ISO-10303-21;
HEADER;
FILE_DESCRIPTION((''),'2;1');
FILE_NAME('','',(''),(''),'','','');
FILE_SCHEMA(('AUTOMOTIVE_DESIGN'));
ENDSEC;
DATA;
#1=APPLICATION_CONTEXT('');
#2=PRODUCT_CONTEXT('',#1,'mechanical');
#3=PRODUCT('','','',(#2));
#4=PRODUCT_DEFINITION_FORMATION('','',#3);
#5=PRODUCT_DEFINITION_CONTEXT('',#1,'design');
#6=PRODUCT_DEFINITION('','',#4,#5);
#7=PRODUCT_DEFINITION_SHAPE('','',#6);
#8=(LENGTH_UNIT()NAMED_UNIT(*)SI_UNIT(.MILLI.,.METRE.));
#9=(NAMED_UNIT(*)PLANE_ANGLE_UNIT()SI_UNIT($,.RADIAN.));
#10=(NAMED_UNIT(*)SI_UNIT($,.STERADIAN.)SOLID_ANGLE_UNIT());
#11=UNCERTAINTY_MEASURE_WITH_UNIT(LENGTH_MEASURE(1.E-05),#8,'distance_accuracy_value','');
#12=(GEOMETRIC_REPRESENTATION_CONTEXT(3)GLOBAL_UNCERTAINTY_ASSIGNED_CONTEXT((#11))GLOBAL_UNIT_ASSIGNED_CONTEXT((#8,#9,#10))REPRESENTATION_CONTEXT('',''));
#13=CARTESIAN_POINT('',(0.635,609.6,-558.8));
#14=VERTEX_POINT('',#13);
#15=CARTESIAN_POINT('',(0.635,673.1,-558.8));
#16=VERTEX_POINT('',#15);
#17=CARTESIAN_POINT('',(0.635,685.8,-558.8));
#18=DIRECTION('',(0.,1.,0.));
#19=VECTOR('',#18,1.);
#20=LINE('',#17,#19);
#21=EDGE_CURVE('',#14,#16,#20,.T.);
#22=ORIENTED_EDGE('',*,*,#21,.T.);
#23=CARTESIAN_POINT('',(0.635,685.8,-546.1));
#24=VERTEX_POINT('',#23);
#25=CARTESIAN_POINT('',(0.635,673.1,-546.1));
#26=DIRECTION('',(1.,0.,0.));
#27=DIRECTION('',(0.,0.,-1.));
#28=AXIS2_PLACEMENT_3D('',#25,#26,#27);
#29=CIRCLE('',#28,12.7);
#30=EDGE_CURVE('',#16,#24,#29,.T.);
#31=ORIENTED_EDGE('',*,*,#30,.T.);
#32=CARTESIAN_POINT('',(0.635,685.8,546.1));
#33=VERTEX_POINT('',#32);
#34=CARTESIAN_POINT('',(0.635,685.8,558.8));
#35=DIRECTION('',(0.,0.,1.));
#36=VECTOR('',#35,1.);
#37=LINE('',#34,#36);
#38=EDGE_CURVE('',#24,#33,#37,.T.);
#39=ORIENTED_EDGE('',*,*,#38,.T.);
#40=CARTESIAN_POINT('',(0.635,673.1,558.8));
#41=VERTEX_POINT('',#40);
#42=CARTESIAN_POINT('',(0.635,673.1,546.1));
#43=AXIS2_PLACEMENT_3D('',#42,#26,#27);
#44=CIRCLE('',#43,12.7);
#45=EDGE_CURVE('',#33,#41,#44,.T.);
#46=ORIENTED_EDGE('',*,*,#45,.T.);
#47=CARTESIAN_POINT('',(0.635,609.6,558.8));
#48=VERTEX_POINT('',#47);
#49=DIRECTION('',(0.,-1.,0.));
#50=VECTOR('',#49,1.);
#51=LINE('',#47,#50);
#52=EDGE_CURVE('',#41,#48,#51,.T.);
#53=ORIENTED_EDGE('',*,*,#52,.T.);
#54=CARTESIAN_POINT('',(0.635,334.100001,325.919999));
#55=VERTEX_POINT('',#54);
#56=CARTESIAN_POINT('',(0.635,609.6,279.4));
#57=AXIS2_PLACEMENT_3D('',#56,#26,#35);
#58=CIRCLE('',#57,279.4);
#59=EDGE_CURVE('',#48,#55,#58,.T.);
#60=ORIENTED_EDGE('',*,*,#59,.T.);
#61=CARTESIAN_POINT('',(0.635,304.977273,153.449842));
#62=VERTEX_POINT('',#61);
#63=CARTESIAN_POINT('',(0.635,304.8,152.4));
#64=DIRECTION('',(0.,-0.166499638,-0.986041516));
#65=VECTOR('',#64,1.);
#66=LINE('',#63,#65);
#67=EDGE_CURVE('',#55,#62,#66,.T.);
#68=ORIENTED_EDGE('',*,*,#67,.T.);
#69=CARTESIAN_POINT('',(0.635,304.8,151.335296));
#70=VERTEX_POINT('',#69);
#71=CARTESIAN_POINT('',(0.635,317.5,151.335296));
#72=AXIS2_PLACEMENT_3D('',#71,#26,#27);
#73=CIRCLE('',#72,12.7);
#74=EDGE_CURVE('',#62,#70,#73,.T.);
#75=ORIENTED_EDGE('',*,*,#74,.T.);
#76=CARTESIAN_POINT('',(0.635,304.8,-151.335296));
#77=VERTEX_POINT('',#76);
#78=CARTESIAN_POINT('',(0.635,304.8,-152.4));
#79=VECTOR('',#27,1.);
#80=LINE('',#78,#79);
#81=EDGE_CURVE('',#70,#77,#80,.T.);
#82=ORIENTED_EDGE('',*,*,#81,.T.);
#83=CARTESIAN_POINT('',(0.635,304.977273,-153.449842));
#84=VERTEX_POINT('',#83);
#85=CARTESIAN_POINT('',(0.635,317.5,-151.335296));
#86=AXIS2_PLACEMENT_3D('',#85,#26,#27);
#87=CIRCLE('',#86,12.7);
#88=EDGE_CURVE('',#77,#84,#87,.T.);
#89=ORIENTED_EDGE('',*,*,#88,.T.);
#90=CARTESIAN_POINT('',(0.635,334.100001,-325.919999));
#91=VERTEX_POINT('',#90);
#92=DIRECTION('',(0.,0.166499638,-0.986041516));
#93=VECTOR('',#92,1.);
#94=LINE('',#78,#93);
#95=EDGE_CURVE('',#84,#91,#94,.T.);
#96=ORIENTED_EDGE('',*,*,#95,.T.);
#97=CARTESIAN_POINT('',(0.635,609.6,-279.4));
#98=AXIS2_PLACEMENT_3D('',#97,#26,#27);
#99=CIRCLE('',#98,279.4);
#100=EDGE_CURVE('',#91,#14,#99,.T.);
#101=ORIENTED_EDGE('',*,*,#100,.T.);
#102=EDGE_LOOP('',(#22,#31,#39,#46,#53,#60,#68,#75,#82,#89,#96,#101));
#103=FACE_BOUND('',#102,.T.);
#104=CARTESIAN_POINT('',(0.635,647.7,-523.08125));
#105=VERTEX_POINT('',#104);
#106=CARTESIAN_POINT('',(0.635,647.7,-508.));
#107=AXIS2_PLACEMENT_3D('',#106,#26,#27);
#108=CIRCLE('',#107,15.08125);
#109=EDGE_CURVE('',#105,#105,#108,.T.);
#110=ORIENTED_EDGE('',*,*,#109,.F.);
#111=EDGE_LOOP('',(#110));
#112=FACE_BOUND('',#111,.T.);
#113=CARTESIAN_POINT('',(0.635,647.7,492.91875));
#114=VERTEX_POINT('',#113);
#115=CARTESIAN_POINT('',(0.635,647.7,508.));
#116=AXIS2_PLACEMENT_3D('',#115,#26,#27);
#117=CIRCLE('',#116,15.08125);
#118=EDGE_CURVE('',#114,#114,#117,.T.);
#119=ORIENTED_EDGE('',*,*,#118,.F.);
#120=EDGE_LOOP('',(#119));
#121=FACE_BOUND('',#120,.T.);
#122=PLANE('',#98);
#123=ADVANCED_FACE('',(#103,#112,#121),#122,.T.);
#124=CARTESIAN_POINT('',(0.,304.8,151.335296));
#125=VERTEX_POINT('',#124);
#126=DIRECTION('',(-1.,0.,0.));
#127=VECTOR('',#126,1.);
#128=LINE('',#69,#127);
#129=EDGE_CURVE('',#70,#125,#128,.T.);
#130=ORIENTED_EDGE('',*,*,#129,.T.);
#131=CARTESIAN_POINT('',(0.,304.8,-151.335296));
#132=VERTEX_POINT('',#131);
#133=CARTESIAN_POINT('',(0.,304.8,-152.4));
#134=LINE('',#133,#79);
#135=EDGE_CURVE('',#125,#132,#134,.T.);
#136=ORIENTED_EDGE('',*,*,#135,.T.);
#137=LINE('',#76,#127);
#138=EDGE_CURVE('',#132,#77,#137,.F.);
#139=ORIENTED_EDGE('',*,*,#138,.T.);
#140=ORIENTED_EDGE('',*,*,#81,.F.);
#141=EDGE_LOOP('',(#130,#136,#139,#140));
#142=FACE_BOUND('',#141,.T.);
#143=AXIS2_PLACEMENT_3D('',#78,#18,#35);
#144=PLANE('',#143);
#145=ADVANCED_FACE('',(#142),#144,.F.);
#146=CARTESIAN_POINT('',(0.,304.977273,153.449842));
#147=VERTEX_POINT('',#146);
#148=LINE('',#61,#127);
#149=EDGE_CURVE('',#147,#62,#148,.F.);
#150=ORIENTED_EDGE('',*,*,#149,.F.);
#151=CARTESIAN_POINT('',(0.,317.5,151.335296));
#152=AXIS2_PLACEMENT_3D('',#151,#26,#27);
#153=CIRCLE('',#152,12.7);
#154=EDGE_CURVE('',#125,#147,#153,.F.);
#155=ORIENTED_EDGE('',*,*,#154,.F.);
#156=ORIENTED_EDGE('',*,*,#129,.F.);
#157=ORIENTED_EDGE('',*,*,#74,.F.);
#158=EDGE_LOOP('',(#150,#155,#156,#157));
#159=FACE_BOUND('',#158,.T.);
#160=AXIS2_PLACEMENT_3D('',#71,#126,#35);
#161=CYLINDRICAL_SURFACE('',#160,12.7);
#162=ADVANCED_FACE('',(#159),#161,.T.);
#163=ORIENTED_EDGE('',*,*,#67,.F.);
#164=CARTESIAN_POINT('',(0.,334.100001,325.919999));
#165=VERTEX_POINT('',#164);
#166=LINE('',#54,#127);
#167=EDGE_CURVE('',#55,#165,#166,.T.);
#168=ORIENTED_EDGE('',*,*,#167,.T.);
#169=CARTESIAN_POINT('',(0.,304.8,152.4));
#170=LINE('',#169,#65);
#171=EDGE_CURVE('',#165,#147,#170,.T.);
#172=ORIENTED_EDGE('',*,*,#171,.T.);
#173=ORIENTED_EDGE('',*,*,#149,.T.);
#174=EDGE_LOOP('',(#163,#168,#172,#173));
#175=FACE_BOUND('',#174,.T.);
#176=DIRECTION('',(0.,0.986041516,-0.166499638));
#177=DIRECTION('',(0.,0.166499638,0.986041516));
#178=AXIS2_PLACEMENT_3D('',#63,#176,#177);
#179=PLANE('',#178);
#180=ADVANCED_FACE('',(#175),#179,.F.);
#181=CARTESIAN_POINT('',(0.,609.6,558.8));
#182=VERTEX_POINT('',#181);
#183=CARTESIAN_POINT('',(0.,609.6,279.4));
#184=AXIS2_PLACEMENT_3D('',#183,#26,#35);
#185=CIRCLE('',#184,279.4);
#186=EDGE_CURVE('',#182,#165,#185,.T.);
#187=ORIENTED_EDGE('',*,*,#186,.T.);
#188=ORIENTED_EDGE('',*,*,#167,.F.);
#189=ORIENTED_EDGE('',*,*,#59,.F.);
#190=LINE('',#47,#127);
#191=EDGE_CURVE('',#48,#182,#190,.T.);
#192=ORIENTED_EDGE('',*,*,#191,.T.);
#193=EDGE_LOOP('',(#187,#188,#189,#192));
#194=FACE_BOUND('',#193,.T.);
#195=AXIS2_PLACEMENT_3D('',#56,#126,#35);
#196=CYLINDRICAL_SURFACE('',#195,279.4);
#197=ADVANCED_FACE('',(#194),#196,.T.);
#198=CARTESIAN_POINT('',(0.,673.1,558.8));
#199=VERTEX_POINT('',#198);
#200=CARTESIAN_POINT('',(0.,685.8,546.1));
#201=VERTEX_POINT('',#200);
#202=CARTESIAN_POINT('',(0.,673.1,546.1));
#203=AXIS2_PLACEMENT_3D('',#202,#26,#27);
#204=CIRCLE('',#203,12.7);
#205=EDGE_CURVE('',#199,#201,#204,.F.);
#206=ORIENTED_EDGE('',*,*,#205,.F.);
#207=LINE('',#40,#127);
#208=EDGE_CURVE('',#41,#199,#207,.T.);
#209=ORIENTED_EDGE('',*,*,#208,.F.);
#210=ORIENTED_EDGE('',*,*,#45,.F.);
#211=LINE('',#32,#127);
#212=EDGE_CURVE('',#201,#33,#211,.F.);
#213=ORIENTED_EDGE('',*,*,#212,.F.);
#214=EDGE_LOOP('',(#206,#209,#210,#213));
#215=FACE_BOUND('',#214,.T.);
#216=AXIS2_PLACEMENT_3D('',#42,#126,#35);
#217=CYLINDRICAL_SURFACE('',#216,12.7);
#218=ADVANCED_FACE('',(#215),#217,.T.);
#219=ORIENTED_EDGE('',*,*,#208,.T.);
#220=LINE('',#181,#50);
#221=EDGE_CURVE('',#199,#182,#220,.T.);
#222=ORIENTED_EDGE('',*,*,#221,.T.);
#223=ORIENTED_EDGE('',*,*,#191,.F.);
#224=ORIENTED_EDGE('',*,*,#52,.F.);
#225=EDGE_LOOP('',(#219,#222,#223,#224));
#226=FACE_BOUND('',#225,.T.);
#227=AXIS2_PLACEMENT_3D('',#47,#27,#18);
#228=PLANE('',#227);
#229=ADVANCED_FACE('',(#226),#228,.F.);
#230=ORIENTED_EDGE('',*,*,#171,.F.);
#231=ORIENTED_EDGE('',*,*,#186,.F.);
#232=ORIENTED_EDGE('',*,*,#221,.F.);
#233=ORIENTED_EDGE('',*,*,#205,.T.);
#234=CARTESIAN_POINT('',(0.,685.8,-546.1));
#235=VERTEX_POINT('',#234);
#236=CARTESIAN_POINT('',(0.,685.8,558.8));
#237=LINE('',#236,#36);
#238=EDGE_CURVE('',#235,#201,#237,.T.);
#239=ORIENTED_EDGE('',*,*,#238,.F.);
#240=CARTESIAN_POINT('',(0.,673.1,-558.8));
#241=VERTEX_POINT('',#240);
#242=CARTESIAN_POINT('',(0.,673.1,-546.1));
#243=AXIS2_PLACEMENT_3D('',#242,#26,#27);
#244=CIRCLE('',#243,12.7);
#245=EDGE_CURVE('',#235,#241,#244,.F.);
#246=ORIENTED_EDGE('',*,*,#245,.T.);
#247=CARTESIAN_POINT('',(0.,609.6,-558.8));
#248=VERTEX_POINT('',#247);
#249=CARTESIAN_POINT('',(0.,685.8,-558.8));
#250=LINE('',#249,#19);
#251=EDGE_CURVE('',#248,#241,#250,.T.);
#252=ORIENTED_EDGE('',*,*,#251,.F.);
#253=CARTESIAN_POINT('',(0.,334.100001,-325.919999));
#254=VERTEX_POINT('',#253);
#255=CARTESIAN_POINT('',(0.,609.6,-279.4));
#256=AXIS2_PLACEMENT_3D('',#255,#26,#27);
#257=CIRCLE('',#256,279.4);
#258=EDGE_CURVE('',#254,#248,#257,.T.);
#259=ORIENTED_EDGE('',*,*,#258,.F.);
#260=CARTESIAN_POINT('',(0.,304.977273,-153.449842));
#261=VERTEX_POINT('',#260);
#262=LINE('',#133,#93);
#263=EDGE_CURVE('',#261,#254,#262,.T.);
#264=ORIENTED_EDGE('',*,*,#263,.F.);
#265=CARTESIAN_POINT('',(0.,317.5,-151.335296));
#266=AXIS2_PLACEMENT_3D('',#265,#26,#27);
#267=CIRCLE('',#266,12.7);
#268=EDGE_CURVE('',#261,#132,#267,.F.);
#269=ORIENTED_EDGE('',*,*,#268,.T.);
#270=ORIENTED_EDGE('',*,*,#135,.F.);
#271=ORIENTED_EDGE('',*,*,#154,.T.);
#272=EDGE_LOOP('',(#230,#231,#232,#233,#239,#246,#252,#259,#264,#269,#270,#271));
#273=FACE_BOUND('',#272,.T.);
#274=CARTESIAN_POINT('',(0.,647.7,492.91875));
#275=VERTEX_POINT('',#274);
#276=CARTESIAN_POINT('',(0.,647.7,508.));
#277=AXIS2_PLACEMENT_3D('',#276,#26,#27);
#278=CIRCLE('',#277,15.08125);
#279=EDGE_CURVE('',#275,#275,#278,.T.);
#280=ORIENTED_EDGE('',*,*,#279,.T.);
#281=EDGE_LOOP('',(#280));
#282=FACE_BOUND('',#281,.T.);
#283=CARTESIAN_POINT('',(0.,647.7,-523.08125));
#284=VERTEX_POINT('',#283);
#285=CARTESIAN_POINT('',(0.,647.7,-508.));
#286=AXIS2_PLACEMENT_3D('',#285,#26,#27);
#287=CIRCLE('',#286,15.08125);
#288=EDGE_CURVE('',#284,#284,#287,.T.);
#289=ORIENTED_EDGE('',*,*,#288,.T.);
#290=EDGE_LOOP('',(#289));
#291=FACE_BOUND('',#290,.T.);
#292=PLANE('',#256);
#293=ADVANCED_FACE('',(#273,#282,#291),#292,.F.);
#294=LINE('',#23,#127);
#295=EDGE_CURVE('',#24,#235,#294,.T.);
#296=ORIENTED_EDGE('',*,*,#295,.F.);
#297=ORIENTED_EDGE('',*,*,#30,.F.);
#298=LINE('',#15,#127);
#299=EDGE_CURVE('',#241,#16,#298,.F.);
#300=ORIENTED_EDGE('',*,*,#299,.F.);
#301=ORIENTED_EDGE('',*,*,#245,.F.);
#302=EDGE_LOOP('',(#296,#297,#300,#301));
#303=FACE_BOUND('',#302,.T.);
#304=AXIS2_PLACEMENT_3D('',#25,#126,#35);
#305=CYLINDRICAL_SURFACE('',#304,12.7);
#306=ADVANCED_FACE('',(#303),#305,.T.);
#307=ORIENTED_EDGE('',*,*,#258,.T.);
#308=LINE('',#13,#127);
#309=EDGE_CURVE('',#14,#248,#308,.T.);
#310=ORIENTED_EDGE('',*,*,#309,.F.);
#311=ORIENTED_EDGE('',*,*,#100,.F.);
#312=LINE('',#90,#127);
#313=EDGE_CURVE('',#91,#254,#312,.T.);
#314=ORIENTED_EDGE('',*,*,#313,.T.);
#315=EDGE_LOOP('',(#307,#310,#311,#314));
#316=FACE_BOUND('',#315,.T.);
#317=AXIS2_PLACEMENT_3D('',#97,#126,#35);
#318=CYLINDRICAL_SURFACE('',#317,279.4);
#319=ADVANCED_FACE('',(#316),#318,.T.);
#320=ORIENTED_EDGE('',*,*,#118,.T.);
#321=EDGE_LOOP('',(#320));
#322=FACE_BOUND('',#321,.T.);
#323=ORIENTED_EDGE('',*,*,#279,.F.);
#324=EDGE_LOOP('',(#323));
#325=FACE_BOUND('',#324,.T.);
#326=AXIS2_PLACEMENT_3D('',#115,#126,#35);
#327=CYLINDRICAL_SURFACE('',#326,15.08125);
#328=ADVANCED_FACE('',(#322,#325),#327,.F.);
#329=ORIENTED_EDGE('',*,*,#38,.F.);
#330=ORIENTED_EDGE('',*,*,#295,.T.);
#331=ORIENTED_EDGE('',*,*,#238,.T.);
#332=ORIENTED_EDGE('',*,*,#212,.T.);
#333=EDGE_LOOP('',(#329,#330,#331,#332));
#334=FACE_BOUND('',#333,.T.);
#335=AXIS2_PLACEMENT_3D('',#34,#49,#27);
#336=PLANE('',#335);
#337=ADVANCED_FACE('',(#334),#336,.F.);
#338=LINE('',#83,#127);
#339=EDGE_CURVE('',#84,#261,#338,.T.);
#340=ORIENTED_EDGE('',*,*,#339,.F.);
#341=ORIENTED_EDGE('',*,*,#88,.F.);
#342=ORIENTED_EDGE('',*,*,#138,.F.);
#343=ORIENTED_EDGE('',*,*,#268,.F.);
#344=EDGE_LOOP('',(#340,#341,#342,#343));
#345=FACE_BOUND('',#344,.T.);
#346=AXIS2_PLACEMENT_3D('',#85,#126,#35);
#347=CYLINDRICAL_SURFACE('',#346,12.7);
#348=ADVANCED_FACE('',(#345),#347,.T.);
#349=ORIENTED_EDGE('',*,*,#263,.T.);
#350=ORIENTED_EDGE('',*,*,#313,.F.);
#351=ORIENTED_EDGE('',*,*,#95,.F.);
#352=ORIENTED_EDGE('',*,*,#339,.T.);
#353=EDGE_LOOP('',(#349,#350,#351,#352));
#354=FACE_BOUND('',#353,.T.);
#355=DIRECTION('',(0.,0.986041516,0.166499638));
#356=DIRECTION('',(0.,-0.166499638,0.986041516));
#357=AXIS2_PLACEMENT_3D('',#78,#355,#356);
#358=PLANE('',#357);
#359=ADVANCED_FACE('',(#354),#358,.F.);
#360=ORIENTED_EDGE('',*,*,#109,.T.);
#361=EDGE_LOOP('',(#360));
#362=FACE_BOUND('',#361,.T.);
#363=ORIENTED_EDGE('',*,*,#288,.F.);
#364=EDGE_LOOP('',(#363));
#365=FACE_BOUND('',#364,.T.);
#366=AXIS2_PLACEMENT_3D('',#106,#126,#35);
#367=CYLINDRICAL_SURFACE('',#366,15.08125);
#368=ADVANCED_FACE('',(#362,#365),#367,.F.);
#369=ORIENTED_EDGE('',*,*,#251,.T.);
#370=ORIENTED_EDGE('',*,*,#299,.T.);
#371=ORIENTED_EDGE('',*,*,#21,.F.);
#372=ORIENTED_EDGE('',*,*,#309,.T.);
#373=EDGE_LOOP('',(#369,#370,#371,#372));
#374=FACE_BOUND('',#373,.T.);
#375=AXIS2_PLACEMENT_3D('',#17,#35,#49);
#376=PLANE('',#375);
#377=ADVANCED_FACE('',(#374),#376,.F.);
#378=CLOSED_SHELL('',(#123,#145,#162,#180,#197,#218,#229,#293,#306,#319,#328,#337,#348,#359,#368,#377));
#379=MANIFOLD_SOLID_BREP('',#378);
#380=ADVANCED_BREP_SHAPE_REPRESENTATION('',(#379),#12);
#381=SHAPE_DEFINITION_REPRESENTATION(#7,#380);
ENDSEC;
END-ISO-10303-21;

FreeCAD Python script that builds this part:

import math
import FreeCAD as App
import Part
import Sketcher
Q = App.Units.Quantity


def edges_at(feature, points):
    """Names of the edges that pass closest to the given points."""
    edges = feature.Shape.Edges
    near = lambda p: min(range(len(edges)), key=lambda i: edges[i].distToShape(Part.Vertex(*p))[0])
    return sorted({f"Edge{near(p) + 1}" for p in points})

doc = App.newDocument("Part")
body = doc.addObject("PartDesign::Body", "Body")

# Sketch on YZ plane
sketch1 = body.newObject("Sketcher::SketchObject", "Sketch")
sketch1.AttachmentSupport = (doc.getObject("YZ_Plane"), [""])
sketch1.MapMode = "FlatFace"
sketch1.addGeometry([
    Part.LineSegment(App.Vector(686, 559, 0), App.Vector(610, 559, 0)),  # 0
    Part.ArcOfCircle(Part.Circle(App.Vector(610, 279, 0), App.Vector(0, 0, 1), 279), math.radians(90), math.radians(170)),  # 1
    Part.LineSegment(App.Vector(334, 326, 0), App.Vector(305, 152, 0)),  # 2
    Part.LineSegment(App.Vector(305, 152, 0), App.Vector(305, -152, 0)),  # 3
    Part.LineSegment(App.Vector(305, -152, 0), App.Vector(334, -326, 0)),  # 4
    Part.ArcOfCircle(Part.Circle(App.Vector(610, -279, 0), App.Vector(0, 0, 1), 279), math.radians(-170), math.radians(-90)),  # 5
    Part.LineSegment(App.Vector(610, -559, 0), App.Vector(686, -559, 0)),  # 6
    Part.LineSegment(App.Vector(686, -559, 0), App.Vector(686, 559, 0)),  # 7
    Part.Circle(App.Vector(648, -508, 0), App.Vector(0, 0, 1), 15),  # 8
    Part.Circle(App.Vector(648, 508, 0), App.Vector(0, 0, 1), 15),  # 9
], False)
sketch1.addConstraint([
    Sketcher.Constraint("Tangent", 0, 2, 1, 1),
    Sketcher.Constraint("Tangent", 1, 2, 2, 1),
    Sketcher.Constraint("Coincident", 2, 2, 3, 1),
    Sketcher.Constraint("Coincident", 3, 2, 4, 1),
    Sketcher.Constraint("Tangent", 4, 2, 5, 1),
    Sketcher.Constraint("Tangent", 5, 2, 6, 1),
    Sketcher.Constraint("Coincident", 6, 2, 7, 1),
    Sketcher.Constraint("Coincident", 7, 2, 0, 1),
    Sketcher.Constraint("Horizontal", 0),
    Sketcher.Constraint("Vertical", 3),
    Sketcher.Constraint("Horizontal", 6),
    Sketcher.Constraint("Vertical", 7),
    Sketcher.Constraint("Equal", 1, 5),
    Sketcher.Constraint("Equal", 8, 9),
    Sketcher.Constraint("Symmetric", 1, 3, 5, 3, -1),
    Sketcher.Constraint("Symmetric", 8, 3, 9, 3, -1),
    Sketcher.Constraint("Equal", 2, 4),
    Sketcher.Constraint("Radius", 1, Q("11 in")),
    Sketcher.Constraint("DistanceX", 0, 2, 0, 1, Q("3 in")),
    Sketcher.Constraint("DistanceY", 3, 2, 3, 1, Q("12 in")),
    Sketcher.Constraint("DistanceY", 7, 1, 7, 2, Q("44 in")),
    Sketcher.Constraint("Diameter", 8, Q("1.1875 in")),
    Sketcher.Constraint("DistanceX", -1, 1, 1, 3, Q("24 in")),
    Sketcher.Constraint("DistanceY", 8, 3, -1, 1, Q("20 in")),
    Sketcher.Constraint("DistanceX", -1, 1, 2, 2, Q("12 in")),
    Sketcher.Constraint("DistanceX", -1, 1, 8, 3, Q("25.5 in")),
])
pad1 = body.newObject("PartDesign::Pad", "Pad")
pad1.Profile = sketch1
pad1.Length = Q("0.025 in")
doc.recompute()

fillet = body.newObject("PartDesign::Fillet", "Fillet")
fillet.Base = (pad1, edges_at(pad1, [
    (0.318, 304.8, -152.4),
    (0.318, 304.8, 152.4),
    (0.318, 685.8, 558.8),
    (0.318, 685.8, -558.8),
]))
fillet.Radius = Q("0.5 in")

doc.recompute()
